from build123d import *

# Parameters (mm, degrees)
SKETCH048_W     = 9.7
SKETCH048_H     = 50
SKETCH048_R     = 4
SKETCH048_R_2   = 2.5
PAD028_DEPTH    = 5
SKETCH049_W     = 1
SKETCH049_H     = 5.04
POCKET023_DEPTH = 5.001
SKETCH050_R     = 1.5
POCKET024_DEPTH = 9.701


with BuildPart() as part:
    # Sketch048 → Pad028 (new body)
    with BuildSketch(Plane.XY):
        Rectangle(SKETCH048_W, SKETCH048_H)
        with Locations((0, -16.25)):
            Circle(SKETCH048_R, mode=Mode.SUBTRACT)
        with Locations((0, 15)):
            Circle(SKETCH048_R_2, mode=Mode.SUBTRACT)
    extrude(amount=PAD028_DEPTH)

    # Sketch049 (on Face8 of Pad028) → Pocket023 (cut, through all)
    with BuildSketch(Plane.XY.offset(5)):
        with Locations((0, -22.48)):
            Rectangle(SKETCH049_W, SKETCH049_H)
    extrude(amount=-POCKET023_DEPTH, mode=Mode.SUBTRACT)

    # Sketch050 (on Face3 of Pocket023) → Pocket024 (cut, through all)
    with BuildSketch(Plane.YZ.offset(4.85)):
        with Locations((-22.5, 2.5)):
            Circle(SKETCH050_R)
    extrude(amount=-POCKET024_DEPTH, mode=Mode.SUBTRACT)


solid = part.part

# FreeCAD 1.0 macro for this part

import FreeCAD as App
import Part
import Sketcher
Q = App.Units.Quantity

doc = App.newDocument("Part")
params = doc.addObject("Spreadsheet::Sheet", "Params")
for row, (alias, value) in enumerate([
    ("sketch1_diameter", "8 mm"),
    ("sketch1_diameter2", "5 mm"),
    ("sketch1_height", "50 mm"),
    ("sketch1_width", "9.7 mm"),
    ("pad1_length", "5 mm"),
    ("sketch2_width", "1 mm"),
    ("sketch2_height", "5.04 mm"),
    ("sketch3_diameter", "3 mm"),
], start=1):
    params.set(f"A{row}", alias)
    params.set(f"B{row}", "=" + value)
    params.setAlias(f"B{row}", alias)

body = doc.addObject("PartDesign::Body", "Body")

# Sketch on XY plane
sketch1 = body.newObject("Sketcher::SketchObject", "Sketch")
sketch1.AttachmentSupport = (doc.getObject("XY_Plane"), [""])
sketch1.MapMode = "FlatFace"
sketch1.addGeometry(Part.LineSegment(App.Vector(-4.8, 25, 0), App.Vector(-4.8, -25, 0)), False)
sketch1.addGeometry(Part.LineSegment(App.Vector(-4.8, -25, 0), App.Vector(4.8, -25, 0)), False)
sketch1.addGeometry(Part.LineSegment(App.Vector(4.8, -25, 0), App.Vector(4.8, 25, 0)), False)
sketch1.addGeometry(Part.LineSegment(App.Vector(4.8, 25, 0), App.Vector(-4.8, 25, 0)), False)
sketch1.addGeometry(Part.Circle(App.Vector(0, -16.2, 0), App.Vector(0, 0, 1), 4), False)
sketch1.addGeometry(Part.Circle(App.Vector(0, 15, 0), App.Vector(0, 0, 1), 2.5), False)
sketch1.addConstraint(Sketcher.Constraint("Coincident", 0, 2, 1, 1))
sketch1.addConstraint(Sketcher.Constraint("Coincident", 1, 2, 2, 1))
sketch1.addConstraint(Sketcher.Constraint("Coincident", 2, 2, 3, 1))
sketch1.addConstraint(Sketcher.Constraint("Coincident", 3, 2, 0, 1))
sketch1.addConstraint(Sketcher.Constraint("Vertical", 0))
sketch1.addConstraint(Sketcher.Constraint("Horizontal", 1))
sketch1.addConstraint(Sketcher.Constraint("Vertical", 2))
sketch1.addConstraint(Sketcher.Constraint("Horizontal", 3))
sketch1.addConstraint(Sketcher.Constraint("Symmetric", 0, 2, 2, 2, -1, 1))
sketch1.addConstraint(Sketcher.Constraint("PointOnObject", 4, 3, -2))
sketch1.addConstraint(Sketcher.Constraint("PointOnObject", 5, 3, -2))
sketch1.addConstraint(Sketcher.Constraint("Diameter", 4, Q("8 mm")))
sketch1.addConstraint(Sketcher.Constraint("Diameter", 5, Q("5 mm")))
sketch1.addConstraint(Sketcher.Constraint("DistanceY", 0, 2, 0, 1, Q("50 mm")))
sketch1.addConstraint(Sketcher.Constraint("DistanceX", 1, 1, 1, 2, Q("9.7 mm")))
sketch1.addConstraint(Sketcher.Constraint("DistanceY", -1, 1, 5, 3, Q("15 mm")))
sketch1.addConstraint(Sketcher.Constraint("DistanceY", 4, 3, -1, 1, Q("16.25 mm")))
sketch1.setExpression("Constraints[11]", "Params.sketch1_diameter")
sketch1.setExpression("Constraints[12]", "Params.sketch1_diameter2")
sketch1.setExpression("Constraints[13]", "Params.sketch1_height")
sketch1.setExpression("Constraints[14]", "Params.sketch1_width")
pad1 = body.newObject("PartDesign::Pad", "Pad")
pad1.Profile = sketch1
pad1.setExpression("Length", "Params.pad1_length")

# Sketch on XY plane
sketch2 = body.newObject("Sketcher::SketchObject", "Sketch001")
sketch2.AttachmentSupport = (doc.getObject("XY_Plane"), [""])
sketch2.MapMode = "FlatFace"
sketch2.AttachmentOffset = App.Placement(App.Vector(0, 0, 5), App.Rotation())
sketch2.addGeometry(Part.LineSegment(App.Vector(-0.5, -20, 0), App.Vector(-0.5, -25, 0)), False)
sketch2.addGeometry(Part.LineSegment(App.Vector(-0.5, -25, 0), App.Vector(0.5, -25, 0)), False)
sketch2.addGeometry(Part.LineSegment(App.Vector(0.5, -25, 0), App.Vector(0.5, -20, 0)), False)
sketch2.addGeometry(Part.LineSegment(App.Vector(0.5, -20, 0), App.Vector(-0.5, -20, 0)), False)
sketch2.addConstraint(Sketcher.Constraint("Coincident", 0, 2, 1, 1))
sketch2.addConstraint(Sketcher.Constraint("Coincident", 1, 2, 2, 1))
sketch2.addConstraint(Sketcher.Constraint("Coincident", 2, 2, 3, 1))
sketch2.addConstraint(Sketcher.Constraint("Coincident", 3, 2, 0, 1))
sketch2.addConstraint(Sketcher.Constraint("Vertical", 0))
sketch2.addConstraint(Sketcher.Constraint("Horizontal", 1))
sketch2.addConstraint(Sketcher.Constraint("Vertical", 2))
sketch2.addConstraint(Sketcher.Constraint("Horizontal", 3))
sketch2.addConstraint(Sketcher.Constraint("DistanceX", 1, 1, 1, 2, Q("1 mm")))
sketch2.addConstraint(Sketcher.Constraint("DistanceY", 0, 2, -1, 1, Q("25 mm")))
sketch2.addConstraint(Sketcher.Constraint("DistanceY", 0, 2, 0, 1, Q("5.04 mm")))
sketch2.addConstraint(Sketcher.Constraint("DistanceX", 0, 2, -1, 1, Q("0.5 mm")))
sketch2.setExpression("Constraints[8]", "Params.sketch2_width")
sketch2.setExpression("Constraints[10]", "Params.sketch2_height")
pocket1 = body.newObject("PartDesign::Pocket", "Pocket")
pocket1.Profile = sketch2
pocket1.Type = "ThroughAll"

# Sketch on YZ plane
sketch3 = body.newObject("Sketcher::SketchObject", "Sketch002")
sketch3.AttachmentSupport = (doc.getObject("YZ_Plane"), [""])
sketch3.MapMode = "FlatFace"
sketch3.AttachmentOffset = App.Placement(App.Vector(0, 0, 4.85), App.Rotation())
sketch3.addGeometry(Part.Circle(App.Vector(-22.5, 2.5, 0), App.Vector(0, 0, 1), 1.5), False)
sketch3.addConstraint(Sketcher.Constraint("Diameter", 0, Q("3 mm")))
sketch3.addConstraint(Sketcher.Constraint("DistanceX", 0, 3, -1, 1, Q("22.5 mm")))
sketch3.addConstraint(Sketcher.Constraint("DistanceY", -1, 1, 0, 3, Q("2.5 mm")))
sketch3.setExpression("Constraints[0]", "Params.sketch3_diameter")
pocket2 = body.newObject("PartDesign::Pocket", "Pocket001")
pocket2.Profile = sketch3
pocket2.Type = "ThroughAll"

doc.recompute()
